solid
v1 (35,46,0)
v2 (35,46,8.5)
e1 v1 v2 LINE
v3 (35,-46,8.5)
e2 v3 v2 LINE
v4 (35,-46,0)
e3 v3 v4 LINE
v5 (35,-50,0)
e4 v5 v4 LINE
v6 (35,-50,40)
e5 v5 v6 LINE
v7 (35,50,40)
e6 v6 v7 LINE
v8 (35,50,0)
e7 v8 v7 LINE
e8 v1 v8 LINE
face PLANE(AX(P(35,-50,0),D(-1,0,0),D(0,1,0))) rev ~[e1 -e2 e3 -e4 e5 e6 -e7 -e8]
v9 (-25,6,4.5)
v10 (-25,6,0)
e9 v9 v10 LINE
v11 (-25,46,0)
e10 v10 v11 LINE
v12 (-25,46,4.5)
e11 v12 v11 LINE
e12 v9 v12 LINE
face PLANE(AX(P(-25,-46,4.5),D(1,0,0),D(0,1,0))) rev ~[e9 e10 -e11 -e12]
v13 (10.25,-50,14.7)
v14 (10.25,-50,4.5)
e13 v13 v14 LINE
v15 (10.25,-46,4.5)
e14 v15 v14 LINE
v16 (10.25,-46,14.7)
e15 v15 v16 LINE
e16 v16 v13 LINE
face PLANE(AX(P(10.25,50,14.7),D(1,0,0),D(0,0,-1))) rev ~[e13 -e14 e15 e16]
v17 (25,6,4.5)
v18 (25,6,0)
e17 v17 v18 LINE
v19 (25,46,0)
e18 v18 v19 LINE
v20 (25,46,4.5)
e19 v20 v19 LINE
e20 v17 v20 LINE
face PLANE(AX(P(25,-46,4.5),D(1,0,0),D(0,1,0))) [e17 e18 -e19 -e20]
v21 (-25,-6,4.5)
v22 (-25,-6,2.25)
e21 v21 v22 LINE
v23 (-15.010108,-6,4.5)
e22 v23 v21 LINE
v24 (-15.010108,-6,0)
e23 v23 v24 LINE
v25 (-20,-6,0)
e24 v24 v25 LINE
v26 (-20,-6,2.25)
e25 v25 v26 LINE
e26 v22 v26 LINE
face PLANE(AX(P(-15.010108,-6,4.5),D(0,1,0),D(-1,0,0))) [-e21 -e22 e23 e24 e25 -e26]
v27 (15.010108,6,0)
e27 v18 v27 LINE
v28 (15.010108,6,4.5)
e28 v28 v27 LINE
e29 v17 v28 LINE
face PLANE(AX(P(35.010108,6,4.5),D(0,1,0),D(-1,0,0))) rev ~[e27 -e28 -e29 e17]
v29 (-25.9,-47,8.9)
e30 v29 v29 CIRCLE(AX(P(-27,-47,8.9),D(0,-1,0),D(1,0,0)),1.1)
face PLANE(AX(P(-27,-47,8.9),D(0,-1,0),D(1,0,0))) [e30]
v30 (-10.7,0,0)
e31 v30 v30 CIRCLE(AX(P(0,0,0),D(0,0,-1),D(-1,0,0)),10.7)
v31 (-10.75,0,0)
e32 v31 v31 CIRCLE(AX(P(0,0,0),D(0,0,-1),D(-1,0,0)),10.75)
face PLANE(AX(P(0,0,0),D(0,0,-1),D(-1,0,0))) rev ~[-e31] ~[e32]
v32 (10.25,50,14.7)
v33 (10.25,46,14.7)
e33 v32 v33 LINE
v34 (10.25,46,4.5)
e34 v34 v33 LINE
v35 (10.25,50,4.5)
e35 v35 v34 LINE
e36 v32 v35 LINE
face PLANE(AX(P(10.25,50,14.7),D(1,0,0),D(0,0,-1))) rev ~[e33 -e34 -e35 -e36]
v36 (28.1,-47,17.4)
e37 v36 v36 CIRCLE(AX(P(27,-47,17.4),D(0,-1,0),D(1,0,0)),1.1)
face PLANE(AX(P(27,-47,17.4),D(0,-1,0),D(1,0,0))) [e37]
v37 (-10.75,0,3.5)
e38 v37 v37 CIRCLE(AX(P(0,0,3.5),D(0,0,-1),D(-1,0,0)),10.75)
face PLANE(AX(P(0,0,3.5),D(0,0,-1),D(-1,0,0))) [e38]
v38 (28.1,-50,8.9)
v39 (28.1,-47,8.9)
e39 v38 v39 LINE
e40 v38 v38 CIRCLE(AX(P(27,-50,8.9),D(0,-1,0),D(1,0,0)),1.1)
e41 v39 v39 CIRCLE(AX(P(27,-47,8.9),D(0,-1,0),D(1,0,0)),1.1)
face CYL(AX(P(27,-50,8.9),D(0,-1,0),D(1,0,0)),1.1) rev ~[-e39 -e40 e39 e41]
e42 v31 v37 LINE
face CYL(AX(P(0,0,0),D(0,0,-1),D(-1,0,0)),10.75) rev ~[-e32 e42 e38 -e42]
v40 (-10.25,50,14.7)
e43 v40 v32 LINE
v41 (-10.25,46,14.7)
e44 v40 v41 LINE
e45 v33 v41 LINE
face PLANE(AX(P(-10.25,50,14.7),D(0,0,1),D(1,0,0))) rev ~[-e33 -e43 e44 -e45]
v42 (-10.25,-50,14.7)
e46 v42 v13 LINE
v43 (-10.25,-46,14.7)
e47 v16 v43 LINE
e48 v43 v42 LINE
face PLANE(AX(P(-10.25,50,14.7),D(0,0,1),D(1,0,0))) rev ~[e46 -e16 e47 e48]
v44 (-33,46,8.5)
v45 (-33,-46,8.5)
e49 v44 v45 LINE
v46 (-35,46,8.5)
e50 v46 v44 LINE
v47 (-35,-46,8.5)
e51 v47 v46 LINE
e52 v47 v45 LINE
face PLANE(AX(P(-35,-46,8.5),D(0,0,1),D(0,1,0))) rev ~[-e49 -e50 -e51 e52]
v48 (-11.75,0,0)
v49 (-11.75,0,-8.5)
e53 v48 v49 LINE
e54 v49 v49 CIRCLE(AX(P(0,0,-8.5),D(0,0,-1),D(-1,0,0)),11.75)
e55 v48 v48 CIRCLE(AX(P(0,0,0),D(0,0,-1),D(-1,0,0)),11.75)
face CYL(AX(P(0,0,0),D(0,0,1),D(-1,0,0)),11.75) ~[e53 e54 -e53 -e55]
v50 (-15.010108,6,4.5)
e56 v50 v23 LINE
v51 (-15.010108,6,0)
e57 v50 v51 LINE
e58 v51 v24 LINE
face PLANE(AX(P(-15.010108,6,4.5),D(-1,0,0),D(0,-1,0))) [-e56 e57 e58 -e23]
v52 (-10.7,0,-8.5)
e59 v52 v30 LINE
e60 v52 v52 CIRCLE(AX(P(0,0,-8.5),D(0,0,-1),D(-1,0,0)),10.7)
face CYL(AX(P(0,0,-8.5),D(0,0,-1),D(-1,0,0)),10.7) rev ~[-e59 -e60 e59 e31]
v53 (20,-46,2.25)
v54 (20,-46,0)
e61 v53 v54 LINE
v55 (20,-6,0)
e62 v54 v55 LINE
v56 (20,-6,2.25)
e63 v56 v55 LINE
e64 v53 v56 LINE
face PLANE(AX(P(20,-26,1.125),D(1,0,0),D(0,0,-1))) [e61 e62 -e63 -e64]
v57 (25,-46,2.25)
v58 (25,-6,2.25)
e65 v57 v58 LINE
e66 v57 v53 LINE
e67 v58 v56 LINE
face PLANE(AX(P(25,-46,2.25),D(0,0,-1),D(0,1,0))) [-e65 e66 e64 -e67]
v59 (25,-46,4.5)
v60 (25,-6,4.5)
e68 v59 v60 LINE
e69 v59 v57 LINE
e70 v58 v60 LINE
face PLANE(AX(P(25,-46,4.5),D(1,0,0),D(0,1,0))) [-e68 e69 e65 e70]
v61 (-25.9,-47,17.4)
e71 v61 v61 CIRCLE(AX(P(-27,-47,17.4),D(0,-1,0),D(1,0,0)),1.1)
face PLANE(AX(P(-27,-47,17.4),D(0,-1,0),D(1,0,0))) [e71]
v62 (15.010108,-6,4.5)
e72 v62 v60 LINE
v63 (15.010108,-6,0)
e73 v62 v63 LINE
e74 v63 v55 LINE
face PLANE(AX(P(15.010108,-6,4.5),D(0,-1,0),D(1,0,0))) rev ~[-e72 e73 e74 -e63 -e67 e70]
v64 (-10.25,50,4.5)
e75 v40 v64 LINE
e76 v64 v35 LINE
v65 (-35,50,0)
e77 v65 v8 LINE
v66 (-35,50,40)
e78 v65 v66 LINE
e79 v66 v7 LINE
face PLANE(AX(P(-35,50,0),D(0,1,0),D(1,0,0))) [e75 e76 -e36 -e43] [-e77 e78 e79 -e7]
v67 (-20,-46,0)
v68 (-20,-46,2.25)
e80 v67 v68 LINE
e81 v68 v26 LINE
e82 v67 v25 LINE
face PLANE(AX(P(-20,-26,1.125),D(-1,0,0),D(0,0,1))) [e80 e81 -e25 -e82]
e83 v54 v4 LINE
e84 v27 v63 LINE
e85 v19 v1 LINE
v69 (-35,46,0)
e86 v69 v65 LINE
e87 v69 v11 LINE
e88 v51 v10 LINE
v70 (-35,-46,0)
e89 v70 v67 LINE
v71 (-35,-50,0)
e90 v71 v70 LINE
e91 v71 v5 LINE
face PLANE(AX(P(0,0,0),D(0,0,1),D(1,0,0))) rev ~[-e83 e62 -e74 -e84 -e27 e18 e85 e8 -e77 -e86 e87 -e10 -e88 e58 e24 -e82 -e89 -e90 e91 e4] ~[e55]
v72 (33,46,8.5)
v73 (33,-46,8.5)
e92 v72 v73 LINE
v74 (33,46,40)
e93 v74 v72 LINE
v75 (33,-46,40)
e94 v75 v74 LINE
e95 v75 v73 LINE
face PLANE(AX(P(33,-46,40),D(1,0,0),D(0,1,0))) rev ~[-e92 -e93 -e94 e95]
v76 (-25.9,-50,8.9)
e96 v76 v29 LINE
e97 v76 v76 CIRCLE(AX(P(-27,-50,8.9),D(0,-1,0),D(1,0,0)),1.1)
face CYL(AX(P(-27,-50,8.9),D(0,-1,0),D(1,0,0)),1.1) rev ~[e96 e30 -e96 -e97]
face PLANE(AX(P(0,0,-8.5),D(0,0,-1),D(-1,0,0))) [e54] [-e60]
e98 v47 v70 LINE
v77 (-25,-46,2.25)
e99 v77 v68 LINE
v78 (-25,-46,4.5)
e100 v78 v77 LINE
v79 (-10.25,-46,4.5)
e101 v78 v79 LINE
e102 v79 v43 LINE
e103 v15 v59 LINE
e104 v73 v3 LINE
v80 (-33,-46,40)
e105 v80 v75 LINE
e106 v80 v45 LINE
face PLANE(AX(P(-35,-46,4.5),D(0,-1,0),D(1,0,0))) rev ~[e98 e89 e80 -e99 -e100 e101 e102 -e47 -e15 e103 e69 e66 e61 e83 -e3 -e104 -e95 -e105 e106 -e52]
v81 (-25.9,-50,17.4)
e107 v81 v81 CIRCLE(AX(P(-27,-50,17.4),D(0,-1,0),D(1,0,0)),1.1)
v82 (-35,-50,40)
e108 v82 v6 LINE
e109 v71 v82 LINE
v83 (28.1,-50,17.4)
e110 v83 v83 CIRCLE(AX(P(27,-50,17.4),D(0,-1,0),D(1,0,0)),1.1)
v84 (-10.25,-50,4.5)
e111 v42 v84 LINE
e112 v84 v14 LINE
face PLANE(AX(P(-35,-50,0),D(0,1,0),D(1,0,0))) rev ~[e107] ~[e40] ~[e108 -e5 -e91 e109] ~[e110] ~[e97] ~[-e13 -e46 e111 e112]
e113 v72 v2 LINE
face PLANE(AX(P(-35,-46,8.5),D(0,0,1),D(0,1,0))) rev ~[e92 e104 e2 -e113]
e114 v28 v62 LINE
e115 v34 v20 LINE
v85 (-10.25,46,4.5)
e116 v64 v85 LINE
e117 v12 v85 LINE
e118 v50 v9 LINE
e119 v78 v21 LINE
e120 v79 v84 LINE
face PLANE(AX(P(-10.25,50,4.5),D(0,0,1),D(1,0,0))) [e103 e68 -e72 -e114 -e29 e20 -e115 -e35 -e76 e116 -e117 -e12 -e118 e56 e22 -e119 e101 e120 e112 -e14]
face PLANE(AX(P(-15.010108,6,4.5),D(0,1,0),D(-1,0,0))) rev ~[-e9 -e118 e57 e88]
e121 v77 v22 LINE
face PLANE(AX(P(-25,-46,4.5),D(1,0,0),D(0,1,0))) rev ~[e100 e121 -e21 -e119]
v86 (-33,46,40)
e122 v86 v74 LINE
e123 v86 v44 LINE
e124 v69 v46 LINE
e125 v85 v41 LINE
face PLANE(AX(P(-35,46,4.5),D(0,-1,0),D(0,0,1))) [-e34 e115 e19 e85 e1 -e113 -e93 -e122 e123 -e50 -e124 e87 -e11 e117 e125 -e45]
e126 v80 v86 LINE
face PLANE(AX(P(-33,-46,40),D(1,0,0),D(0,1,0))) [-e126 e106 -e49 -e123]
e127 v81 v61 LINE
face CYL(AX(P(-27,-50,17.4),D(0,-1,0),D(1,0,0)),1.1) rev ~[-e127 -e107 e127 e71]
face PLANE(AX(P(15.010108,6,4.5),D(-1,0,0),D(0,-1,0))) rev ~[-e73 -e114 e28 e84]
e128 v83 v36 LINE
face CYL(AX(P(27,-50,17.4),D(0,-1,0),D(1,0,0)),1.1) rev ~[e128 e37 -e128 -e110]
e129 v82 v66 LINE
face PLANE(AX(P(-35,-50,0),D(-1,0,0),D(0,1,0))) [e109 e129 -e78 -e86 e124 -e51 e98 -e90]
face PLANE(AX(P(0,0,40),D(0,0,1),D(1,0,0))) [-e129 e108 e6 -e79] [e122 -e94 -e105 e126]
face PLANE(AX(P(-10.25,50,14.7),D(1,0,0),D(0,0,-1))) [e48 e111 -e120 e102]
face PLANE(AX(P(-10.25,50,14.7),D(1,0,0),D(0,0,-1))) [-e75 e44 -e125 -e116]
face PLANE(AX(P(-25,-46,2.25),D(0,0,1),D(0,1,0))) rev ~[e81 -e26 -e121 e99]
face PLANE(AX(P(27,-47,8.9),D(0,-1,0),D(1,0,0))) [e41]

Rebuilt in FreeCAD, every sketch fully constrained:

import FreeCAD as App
import Part
import Sketcher

V = App.Vector
Q = App.Units.Quantity


def add_polygon(sketch, points):
    """Adds a closed chain of lines whose ends are joined by coincident constraints."""
    first, n = sketch.GeometryCount, len(points)
    for a, b in zip(points, points[1:] + points[:1]):
        sketch.addGeometry(Part.LineSegment(App.Vector(*a, 0), App.Vector(*b, 0)), False)
    for i in range(n):
        sketch.addConstraint(Sketcher.Constraint("Coincident", first + i, 2, first + (i + 1) % n, 1))

doc = App.newDocument("Part")
body = doc.addObject("PartDesign::Body", "Body")

sketch1 = body.newObject("Sketcher::SketchObject", "Sketch")
sketch1.AttachmentSupport = (doc.getObject("XY_Plane"), [""])
sketch1.MapMode = "FlatFace"
add_polygon(sketch1, [(-35, 50), (-35, -50), (35, -50), (35, 50)])
sketch1.addConstraint(Sketcher.Constraint("Vertical", 0))
sketch1.addConstraint(Sketcher.Constraint("Horizontal", 1))
sketch1.addConstraint(Sketcher.Constraint("Vertical", 2))
sketch1.addConstraint(Sketcher.Constraint("Horizontal", 3))
sketch1.addConstraint(Sketcher.Constraint("Symmetric", 0, 2, 2, 2, -1, 1))
sketch1.addConstraint(Sketcher.Constraint("DistanceX", 1, 1, 1, 2, Q("70 mm")))
sketch1.addConstraint(Sketcher.Constraint("DistanceY", 0, 2, 0, 1, Q("100 mm")))
pad1 = body.newObject("PartDesign::Pad", "Pad")
pad1.Profile = sketch1
pad1.Length = 40

sketch2 = body.newObject("Sketcher::SketchObject", "Sketch001")
sketch2.AttachmentSupport = (doc.getObject("XY_Plane"), [""])
sketch2.MapMode = "FlatFace"
sketch2.AttachmentOffset = App.Placement(V(0, 0, 40), App.Rotation())
add_polygon(sketch2, [(-33, 46), (-33, -46), (33, -46), (33, 46)])
sketch2.addConstraint(Sketcher.Constraint("Vertical", 0))
sketch2.addConstraint(Sketcher.Constraint("Horizontal", 1))
sketch2.addConstraint(Sketcher.Constraint("Vertical", 2))
sketch2.addConstraint(Sketcher.Constraint("Horizontal", 3))
sketch2.addConstraint(Sketcher.Constraint("Symmetric", 0, 2, 2, 2, -1, 1))
sketch2.addConstraint(Sketcher.Constraint("DistanceX", 1, 1, 1, 2, Q("66 mm")))
sketch2.addConstraint(Sketcher.Constraint("DistanceY", 0, 2, 0, 1, Q("92 mm")))
pocket1 = body.newObject("PartDesign::Pocket", "Pocket")
pocket1.Profile = sketch2
pocket1.Length = 33

sketch3 = body.newObject("Sketcher::SketchObject", "Sketch002")
sketch3.AttachmentSupport = (doc.getObject("YZ_Plane"), [""])
sketch3.MapMode = "FlatFace"
sketch3.AttachmentOffset = App.Placement(V(0, 0, -35), App.Rotation())
add_polygon(sketch3, [(46, 4.5), (-46, 4.5), (-46, 8.5), (46, 8.5)])
sketch3.addConstraint(Sketcher.Constraint("Horizontal", 0))
sketch3.addConstraint(Sketcher.Constraint("Vertical", 1))
sketch3.addConstraint(Sketcher.Constraint("Horizontal", 2))
sketch3.addConstraint(Sketcher.Constraint("Vertical", 3))
sketch3.addConstraint(Sketcher.Constraint("DistanceX", 0, 2, 0, 1, Q("92 mm")))
sketch3.addConstraint(Sketcher.Constraint("DistanceY", 1, 1, 1, 2, Q("4 mm")))
sketch3.addConstraint(Sketcher.Constraint("DistanceX", 0, 2, -1, 1, Q("46 mm")))
sketch3.addConstraint(Sketcher.Constraint("DistanceY", -1, 1, 0, 2, Q("4.5 mm")))
pocket2 = body.newObject("PartDesign::Pocket", "Pocket001")
pocket2.Profile = sketch3
pocket2.Type = "ThroughAll"
pocket2.Reversed = True

sketch4 = body.newObject("Sketcher::SketchObject", "Sketch003")
sketch4.AttachmentSupport = (doc.getObject("XY_Plane"), [""])
sketch4.MapMode = "FlatFace"
sketch4.addGeometry(Part.Circle(V(0, 0, 0), V(0, 0, 1), 10.75), False)
sketch4.addConstraint(Sketcher.Constraint("Coincident", 0, 3, -1, 1))
sketch4.addConstraint(Sketcher.Constraint("Diameter", 0, Q("21.5 mm")))
pocket3 = body.newObject("PartDesign::Pocket", "Pocket002")
pocket3.Profile = sketch4
pocket3.Length = 3.5
pocket3.Reversed = True

sketch5 = body.newObject("Sketcher::SketchObject", "Sketch004")
sketch5.AttachmentSupport = (doc.getObject("XY_Plane"), [""])
sketch5.MapMode = "FlatFace"
sketch5.AttachmentOffset = App.Placement(V(0, 0, 4.5), App.Rotation())
add_polygon(sketch5, [(-35.010108, -6), (-15.010108, -6), (-15.010108, 6), (-35.010108, 6)])
add_polygon(sketch5, [(15.010108, -6), (35.010108, -6), (35.010108, 6), (15.010108, 6)])
sketch5.addConstraint(Sketcher.Constraint("Horizontal", 0))
sketch5.addConstraint(Sketcher.Constraint("Vertical", 1))
sketch5.addConstraint(Sketcher.Constraint("Horizontal", 2))
sketch5.addConstraint(Sketcher.Constraint("Vertical", 3))
sketch5.addConstraint(Sketcher.Constraint("Horizontal", 4))
sketch5.addConstraint(Sketcher.Constraint("Vertical", 5))
sketch5.addConstraint(Sketcher.Constraint("Horizontal", 6))
sketch5.addConstraint(Sketcher.Constraint("Vertical", 7))
sketch5.addConstraint(Sketcher.Constraint("Symmetric", 2, 2, 4, 2, -1, 1))
sketch5.addConstraint(Sketcher.Constraint("Symmetric", 0, 2, 6, 2, -1, 1))
sketch5.addConstraint(Sketcher.Constraint("Horizontal", 3, 2, 4, 2))
sketch5.addConstraint(Sketcher.Constraint("DistanceX", 0, 1, 0, 2, Q("20 mm")))
sketch5.addConstraint(Sketcher.Constraint("DistanceY", 1, 1, 1, 2, Q("12 mm")))
sketch5.addConstraint(Sketcher.Constraint("DistanceX", 0, 2, -1, 1, Q("15.010108 mm")))
pocket4 = body.newObject("PartDesign::Pocket", "Pocket003")
pocket4.Profile = sketch5
pocket4.Type = "ThroughAll"

sketch6 = body.newObject("Sketcher::SketchObject", "Sketch005")
sketch6.AttachmentSupport = (doc.getObject("XZ_Plane"), [""])
sketch6.MapMode = "FlatFace"
sketch6.AttachmentOffset = App.Placement(V(0, 0, 50), App.Rotation())
sketch6.addGeometry(Part.Circle(V(27, 8.9, 0), V(0, 0, 1), 1.1), False)
sketch6.addGeometry(Part.Circle(V(27, 17.4, 0), V(0, 0, 1), 1.1), False)
sketch6.addGeometry(Part.Circle(V(-27, 8.9, 0), V(0, 0, 1), 1.1), False)
sketch6.addGeometry(Part.Circle(V(-27, 17.4, 0), V(0, 0, 1), 1.1), False)
sketch6.addConstraint(Sketcher.Constraint("Equal", 0, 1))
sketch6.addConstraint(Sketcher.Constraint("Equal", 1, 2))
sketch6.addConstraint(Sketcher.Constraint("Equal", 2, 3))
sketch6.addConstraint(Sketcher.Constraint("Symmetric", 0, 3, 2, 3, -2))
sketch6.addConstraint(Sketcher.Constraint("Symmetric", 1, 3, 3, 3, -2))
sketch6.addConstraint(Sketcher.Constraint("Vertical", 0, 3, 1, 3))
sketch6.addConstraint(Sketcher.Constraint("Diameter", 0, Q("2.2 mm")))
sketch6.addConstraint(Sketcher.Constraint("DistanceX", -1, 1, 0, 3, Q("27 mm")))
sketch6.addConstraint(Sketcher.Constraint("DistanceY", -1, 1, 0, 3, Q("8.9 mm")))
sketch6.addConstraint(Sketcher.Constraint("DistanceY", -1, 1, 1, 3, Q("17.4 mm")))
pocket5 = body.newObject("PartDesign::Pocket", "Pocket004")
pocket5.Profile = sketch6
pocket5.Length = 3

sketch7 = body.newObject("Sketcher::SketchObject", "Sketch006")
sketch7.AttachmentSupport = (doc.getObject("XY_Plane"), [""])
sketch7.MapMode = "FlatFace"
sketch7.AttachmentOffset = App.Placement(V(0, 0, 4.5), App.Rotation())
add_polygon(sketch7, [(-35, 46), (-35, -46), (-25, -46), (-25, 46)])
add_polygon(sketch7, [(25, 46), (25, -46), (35, -46), (35, 46)])
sketch7.addConstraint(Sketcher.Constraint("Vertical", 0))
sketch7.addConstraint(Sketcher.Constraint("Horizontal", 1))
sketch7.addConstraint(Sketcher.Constraint("Vertical", 2))
sketch7.addConstraint(Sketcher.Constraint("Horizontal", 3))
sketch7.addConstraint(Sketcher.Constraint("Vertical", 4))
sketch7.addConstraint(Sketcher.Constraint("Horizontal", 5))
sketch7.addConstraint(Sketcher.Constraint("Vertical", 6))
sketch7.addConstraint(Sketcher.Constraint("Horizontal", 7))
sketch7.addConstraint(Sketcher.Constraint("Symmetric", 2, 2, 4, 2, -1, 1))
sketch7.addConstraint(Sketcher.Constraint("Symmetric", 0, 2, 6, 2, -1, 1))
sketch7.addConstraint(Sketcher.Constraint("Horizontal", 1, 2, 4, 2))
sketch7.addConstraint(Sketcher.Constraint("DistanceX", 1, 1, 1, 2, Q("10 mm")))
sketch7.addConstraint(Sketcher.Constraint("DistanceY", 0, 2, 0, 1, Q("92 mm")))
sketch7.addConstraint(Sketcher.Constraint("DistanceX", 0, 2, -1, 1, Q("35 mm")))
pocket6 = body.newObject("PartDesign::Pocket", "Pocket005")
pocket6.Profile = sketch7
pocket6.Length = 10

sketch8 = body.newObject("Sketcher::SketchObject", "Sketch007")
sketch8.AttachmentSupport = (doc.getObject("YZ_Plane"), [""])
sketch8.MapMode = "FlatFace"
sketch8.AttachmentOffset = App.Placement(V(0, 0, 25), App.Rotation())
add_polygon(sketch8, [(-6, 2.25), (-46, 2.25), (-46, 0), (-6, 0)])
sketch8.addConstraint(Sketcher.Constraint("Horizontal", 0))
sketch8.addConstraint(Sketcher.Constraint("Vertical", 1))
sketch8.addConstraint(Sketcher.Constraint("Horizontal", 2))
sketch8.addConstraint(Sketcher.Constraint("Vertical", 3))
sketch8.addConstraint(Sketcher.Constraint("PointOnObject", 1, 2, -1))
sketch8.addConstraint(Sketcher.Constraint("DistanceX", 0, 2, 0, 1, Q("40 mm")))
sketch8.addConstraint(Sketcher.Constraint("DistanceX", 0, 2, -1, 1, Q("46 mm")))
sketch8.addConstraint(Sketcher.Constraint("DistanceY", 1, 2, 1, 1, Q("2.25 mm")))
pocket7 = body.newObject("PartDesign::Pocket", "Pocket006")
pocket7.Profile = sketch8
pocket7.Length = 5

sketch9 = body.newObject("Sketcher::SketchObject", "Sketch008")
sketch9.AttachmentSupport = (doc.getObject("YZ_Plane"), [""])
sketch9.MapMode = "FlatFace"
sketch9.AttachmentOffset = App.Placement(V(0, 0, -25), App.Rotation())
add_polygon(sketch9, [(-6, 0), (-46, 0), (-46, 2.25), (-6, 2.25)])
sketch9.addConstraint(Sketcher.Constraint("Horizontal", 0))
sketch9.addConstraint(Sketcher.Constraint("Vertical", 1))
sketch9.addConstraint(Sketcher.Constraint("Horizontal", 2))
sketch9.addConstraint(Sketcher.Constraint("Vertical", 3))
sketch9.addConstraint(Sketcher.Constraint("PointOnObject", 0, 2, -1))
sketch9.addConstraint(Sketcher.Constraint("DistanceX", 0, 2, 0, 1, Q("40 mm")))
sketch9.addConstraint(Sketcher.Constraint("DistanceX", 0, 2, -1, 1, Q("46 mm")))
sketch9.addConstraint(Sketcher.Constraint("DistanceY", 1, 1, 1, 2, Q("2.25 mm")))
pocket8 = body.newObject("PartDesign::Pocket", "Pocket007")
pocket8.Profile = sketch9
pocket8.Length = 5
pocket8.Reversed = True

sketch10 = body.newObject("Sketcher::SketchObject", "Sketch009")
sketch10.AttachmentSupport = (doc.getObject("XY_Plane"), [""])
sketch10.MapMode = "FlatFace"
sketch10.addGeometry(Part.Circle(V(0, 0, 0), V(0, 0, 1), 11.75), False)
sketch10.addConstraint(Sketcher.Constraint("Coincident", 0, 3, -1, 1))
sketch10.addConstraint(Sketcher.Constraint("Diameter", 0, Q("23.5 mm")))
pad2 = body.newObject("PartDesign::Pad", "Pad001")
pad2.Profile = sketch10
pad2.Length = 8.5
pad2.Reversed = True

sketch11 = body.newObject("Sketcher::SketchObject", "Sketch010")
sketch11.AttachmentSupport = (doc.getObject("XY_Plane"), [""])
sketch11.MapMode = "FlatFace"
sketch11.AttachmentOffset = App.Placement(V(0, 0, -8.5), App.Rotation())
sketch11.addGeometry(Part.Circle(V(0, 0, 0), V(0, 0, 1), 10.7), False)
sketch11.addConstraint(Sketcher.Constraint("Coincident", 0, 3, -1, 1))
sketch11.addConstraint(Sketcher.Constraint("Diameter", 0, Q("21.4 mm")))
pocket9 = body.newObject("PartDesign::Pocket", "Pocket008")
pocket9.Profile = sketch11
pocket9.Length = 10
pocket9.Reversed = True

sketch12 = body.newObject("Sketcher::SketchObject", "Sketch011")
sketch12.AttachmentSupport = (doc.getObject("XZ_Plane"), [""])
sketch12.MapMode = "FlatFace"
sketch12.AttachmentOffset = App.Placement(V(0, 0, -50), App.Rotation())
add_polygon(sketch12, [(-10.25, 4.5), (-10.25, 14.7), (10.25, 14.7), (10.25, 4.5)])
sketch12.addConstraint(Sketcher.Constraint("Vertical", 0))
sketch12.addConstraint(Sketcher.Constraint("Horizontal", 1))
sketch12.addConstraint(Sketcher.Constraint("Vertical", 2))
sketch12.addConstraint(Sketcher.Constraint("Horizontal", 3))
sketch12.addConstraint(Sketcher.Constraint("DistanceX", 1, 1, 1, 2, Q("20.5 mm")))
sketch12.addConstraint(Sketcher.Constraint("DistanceY", 0, 1, 0, 2, Q("10.2 mm")))
sketch12.addConstraint(Sketcher.Constraint("DistanceY", -1, 1, 0, 2, Q("14.7 mm")))
sketch12.addConstraint(Sketcher.Constraint("DistanceX", 0, 2, -1, 1, Q("10.25 mm")))
pocket10 = body.newObject("PartDesign::Pocket", "Pocket009")
pocket10.Profile = sketch12
pocket10.Type = "ThroughAll"
pocket10.Reversed = True

doc.recompute()
